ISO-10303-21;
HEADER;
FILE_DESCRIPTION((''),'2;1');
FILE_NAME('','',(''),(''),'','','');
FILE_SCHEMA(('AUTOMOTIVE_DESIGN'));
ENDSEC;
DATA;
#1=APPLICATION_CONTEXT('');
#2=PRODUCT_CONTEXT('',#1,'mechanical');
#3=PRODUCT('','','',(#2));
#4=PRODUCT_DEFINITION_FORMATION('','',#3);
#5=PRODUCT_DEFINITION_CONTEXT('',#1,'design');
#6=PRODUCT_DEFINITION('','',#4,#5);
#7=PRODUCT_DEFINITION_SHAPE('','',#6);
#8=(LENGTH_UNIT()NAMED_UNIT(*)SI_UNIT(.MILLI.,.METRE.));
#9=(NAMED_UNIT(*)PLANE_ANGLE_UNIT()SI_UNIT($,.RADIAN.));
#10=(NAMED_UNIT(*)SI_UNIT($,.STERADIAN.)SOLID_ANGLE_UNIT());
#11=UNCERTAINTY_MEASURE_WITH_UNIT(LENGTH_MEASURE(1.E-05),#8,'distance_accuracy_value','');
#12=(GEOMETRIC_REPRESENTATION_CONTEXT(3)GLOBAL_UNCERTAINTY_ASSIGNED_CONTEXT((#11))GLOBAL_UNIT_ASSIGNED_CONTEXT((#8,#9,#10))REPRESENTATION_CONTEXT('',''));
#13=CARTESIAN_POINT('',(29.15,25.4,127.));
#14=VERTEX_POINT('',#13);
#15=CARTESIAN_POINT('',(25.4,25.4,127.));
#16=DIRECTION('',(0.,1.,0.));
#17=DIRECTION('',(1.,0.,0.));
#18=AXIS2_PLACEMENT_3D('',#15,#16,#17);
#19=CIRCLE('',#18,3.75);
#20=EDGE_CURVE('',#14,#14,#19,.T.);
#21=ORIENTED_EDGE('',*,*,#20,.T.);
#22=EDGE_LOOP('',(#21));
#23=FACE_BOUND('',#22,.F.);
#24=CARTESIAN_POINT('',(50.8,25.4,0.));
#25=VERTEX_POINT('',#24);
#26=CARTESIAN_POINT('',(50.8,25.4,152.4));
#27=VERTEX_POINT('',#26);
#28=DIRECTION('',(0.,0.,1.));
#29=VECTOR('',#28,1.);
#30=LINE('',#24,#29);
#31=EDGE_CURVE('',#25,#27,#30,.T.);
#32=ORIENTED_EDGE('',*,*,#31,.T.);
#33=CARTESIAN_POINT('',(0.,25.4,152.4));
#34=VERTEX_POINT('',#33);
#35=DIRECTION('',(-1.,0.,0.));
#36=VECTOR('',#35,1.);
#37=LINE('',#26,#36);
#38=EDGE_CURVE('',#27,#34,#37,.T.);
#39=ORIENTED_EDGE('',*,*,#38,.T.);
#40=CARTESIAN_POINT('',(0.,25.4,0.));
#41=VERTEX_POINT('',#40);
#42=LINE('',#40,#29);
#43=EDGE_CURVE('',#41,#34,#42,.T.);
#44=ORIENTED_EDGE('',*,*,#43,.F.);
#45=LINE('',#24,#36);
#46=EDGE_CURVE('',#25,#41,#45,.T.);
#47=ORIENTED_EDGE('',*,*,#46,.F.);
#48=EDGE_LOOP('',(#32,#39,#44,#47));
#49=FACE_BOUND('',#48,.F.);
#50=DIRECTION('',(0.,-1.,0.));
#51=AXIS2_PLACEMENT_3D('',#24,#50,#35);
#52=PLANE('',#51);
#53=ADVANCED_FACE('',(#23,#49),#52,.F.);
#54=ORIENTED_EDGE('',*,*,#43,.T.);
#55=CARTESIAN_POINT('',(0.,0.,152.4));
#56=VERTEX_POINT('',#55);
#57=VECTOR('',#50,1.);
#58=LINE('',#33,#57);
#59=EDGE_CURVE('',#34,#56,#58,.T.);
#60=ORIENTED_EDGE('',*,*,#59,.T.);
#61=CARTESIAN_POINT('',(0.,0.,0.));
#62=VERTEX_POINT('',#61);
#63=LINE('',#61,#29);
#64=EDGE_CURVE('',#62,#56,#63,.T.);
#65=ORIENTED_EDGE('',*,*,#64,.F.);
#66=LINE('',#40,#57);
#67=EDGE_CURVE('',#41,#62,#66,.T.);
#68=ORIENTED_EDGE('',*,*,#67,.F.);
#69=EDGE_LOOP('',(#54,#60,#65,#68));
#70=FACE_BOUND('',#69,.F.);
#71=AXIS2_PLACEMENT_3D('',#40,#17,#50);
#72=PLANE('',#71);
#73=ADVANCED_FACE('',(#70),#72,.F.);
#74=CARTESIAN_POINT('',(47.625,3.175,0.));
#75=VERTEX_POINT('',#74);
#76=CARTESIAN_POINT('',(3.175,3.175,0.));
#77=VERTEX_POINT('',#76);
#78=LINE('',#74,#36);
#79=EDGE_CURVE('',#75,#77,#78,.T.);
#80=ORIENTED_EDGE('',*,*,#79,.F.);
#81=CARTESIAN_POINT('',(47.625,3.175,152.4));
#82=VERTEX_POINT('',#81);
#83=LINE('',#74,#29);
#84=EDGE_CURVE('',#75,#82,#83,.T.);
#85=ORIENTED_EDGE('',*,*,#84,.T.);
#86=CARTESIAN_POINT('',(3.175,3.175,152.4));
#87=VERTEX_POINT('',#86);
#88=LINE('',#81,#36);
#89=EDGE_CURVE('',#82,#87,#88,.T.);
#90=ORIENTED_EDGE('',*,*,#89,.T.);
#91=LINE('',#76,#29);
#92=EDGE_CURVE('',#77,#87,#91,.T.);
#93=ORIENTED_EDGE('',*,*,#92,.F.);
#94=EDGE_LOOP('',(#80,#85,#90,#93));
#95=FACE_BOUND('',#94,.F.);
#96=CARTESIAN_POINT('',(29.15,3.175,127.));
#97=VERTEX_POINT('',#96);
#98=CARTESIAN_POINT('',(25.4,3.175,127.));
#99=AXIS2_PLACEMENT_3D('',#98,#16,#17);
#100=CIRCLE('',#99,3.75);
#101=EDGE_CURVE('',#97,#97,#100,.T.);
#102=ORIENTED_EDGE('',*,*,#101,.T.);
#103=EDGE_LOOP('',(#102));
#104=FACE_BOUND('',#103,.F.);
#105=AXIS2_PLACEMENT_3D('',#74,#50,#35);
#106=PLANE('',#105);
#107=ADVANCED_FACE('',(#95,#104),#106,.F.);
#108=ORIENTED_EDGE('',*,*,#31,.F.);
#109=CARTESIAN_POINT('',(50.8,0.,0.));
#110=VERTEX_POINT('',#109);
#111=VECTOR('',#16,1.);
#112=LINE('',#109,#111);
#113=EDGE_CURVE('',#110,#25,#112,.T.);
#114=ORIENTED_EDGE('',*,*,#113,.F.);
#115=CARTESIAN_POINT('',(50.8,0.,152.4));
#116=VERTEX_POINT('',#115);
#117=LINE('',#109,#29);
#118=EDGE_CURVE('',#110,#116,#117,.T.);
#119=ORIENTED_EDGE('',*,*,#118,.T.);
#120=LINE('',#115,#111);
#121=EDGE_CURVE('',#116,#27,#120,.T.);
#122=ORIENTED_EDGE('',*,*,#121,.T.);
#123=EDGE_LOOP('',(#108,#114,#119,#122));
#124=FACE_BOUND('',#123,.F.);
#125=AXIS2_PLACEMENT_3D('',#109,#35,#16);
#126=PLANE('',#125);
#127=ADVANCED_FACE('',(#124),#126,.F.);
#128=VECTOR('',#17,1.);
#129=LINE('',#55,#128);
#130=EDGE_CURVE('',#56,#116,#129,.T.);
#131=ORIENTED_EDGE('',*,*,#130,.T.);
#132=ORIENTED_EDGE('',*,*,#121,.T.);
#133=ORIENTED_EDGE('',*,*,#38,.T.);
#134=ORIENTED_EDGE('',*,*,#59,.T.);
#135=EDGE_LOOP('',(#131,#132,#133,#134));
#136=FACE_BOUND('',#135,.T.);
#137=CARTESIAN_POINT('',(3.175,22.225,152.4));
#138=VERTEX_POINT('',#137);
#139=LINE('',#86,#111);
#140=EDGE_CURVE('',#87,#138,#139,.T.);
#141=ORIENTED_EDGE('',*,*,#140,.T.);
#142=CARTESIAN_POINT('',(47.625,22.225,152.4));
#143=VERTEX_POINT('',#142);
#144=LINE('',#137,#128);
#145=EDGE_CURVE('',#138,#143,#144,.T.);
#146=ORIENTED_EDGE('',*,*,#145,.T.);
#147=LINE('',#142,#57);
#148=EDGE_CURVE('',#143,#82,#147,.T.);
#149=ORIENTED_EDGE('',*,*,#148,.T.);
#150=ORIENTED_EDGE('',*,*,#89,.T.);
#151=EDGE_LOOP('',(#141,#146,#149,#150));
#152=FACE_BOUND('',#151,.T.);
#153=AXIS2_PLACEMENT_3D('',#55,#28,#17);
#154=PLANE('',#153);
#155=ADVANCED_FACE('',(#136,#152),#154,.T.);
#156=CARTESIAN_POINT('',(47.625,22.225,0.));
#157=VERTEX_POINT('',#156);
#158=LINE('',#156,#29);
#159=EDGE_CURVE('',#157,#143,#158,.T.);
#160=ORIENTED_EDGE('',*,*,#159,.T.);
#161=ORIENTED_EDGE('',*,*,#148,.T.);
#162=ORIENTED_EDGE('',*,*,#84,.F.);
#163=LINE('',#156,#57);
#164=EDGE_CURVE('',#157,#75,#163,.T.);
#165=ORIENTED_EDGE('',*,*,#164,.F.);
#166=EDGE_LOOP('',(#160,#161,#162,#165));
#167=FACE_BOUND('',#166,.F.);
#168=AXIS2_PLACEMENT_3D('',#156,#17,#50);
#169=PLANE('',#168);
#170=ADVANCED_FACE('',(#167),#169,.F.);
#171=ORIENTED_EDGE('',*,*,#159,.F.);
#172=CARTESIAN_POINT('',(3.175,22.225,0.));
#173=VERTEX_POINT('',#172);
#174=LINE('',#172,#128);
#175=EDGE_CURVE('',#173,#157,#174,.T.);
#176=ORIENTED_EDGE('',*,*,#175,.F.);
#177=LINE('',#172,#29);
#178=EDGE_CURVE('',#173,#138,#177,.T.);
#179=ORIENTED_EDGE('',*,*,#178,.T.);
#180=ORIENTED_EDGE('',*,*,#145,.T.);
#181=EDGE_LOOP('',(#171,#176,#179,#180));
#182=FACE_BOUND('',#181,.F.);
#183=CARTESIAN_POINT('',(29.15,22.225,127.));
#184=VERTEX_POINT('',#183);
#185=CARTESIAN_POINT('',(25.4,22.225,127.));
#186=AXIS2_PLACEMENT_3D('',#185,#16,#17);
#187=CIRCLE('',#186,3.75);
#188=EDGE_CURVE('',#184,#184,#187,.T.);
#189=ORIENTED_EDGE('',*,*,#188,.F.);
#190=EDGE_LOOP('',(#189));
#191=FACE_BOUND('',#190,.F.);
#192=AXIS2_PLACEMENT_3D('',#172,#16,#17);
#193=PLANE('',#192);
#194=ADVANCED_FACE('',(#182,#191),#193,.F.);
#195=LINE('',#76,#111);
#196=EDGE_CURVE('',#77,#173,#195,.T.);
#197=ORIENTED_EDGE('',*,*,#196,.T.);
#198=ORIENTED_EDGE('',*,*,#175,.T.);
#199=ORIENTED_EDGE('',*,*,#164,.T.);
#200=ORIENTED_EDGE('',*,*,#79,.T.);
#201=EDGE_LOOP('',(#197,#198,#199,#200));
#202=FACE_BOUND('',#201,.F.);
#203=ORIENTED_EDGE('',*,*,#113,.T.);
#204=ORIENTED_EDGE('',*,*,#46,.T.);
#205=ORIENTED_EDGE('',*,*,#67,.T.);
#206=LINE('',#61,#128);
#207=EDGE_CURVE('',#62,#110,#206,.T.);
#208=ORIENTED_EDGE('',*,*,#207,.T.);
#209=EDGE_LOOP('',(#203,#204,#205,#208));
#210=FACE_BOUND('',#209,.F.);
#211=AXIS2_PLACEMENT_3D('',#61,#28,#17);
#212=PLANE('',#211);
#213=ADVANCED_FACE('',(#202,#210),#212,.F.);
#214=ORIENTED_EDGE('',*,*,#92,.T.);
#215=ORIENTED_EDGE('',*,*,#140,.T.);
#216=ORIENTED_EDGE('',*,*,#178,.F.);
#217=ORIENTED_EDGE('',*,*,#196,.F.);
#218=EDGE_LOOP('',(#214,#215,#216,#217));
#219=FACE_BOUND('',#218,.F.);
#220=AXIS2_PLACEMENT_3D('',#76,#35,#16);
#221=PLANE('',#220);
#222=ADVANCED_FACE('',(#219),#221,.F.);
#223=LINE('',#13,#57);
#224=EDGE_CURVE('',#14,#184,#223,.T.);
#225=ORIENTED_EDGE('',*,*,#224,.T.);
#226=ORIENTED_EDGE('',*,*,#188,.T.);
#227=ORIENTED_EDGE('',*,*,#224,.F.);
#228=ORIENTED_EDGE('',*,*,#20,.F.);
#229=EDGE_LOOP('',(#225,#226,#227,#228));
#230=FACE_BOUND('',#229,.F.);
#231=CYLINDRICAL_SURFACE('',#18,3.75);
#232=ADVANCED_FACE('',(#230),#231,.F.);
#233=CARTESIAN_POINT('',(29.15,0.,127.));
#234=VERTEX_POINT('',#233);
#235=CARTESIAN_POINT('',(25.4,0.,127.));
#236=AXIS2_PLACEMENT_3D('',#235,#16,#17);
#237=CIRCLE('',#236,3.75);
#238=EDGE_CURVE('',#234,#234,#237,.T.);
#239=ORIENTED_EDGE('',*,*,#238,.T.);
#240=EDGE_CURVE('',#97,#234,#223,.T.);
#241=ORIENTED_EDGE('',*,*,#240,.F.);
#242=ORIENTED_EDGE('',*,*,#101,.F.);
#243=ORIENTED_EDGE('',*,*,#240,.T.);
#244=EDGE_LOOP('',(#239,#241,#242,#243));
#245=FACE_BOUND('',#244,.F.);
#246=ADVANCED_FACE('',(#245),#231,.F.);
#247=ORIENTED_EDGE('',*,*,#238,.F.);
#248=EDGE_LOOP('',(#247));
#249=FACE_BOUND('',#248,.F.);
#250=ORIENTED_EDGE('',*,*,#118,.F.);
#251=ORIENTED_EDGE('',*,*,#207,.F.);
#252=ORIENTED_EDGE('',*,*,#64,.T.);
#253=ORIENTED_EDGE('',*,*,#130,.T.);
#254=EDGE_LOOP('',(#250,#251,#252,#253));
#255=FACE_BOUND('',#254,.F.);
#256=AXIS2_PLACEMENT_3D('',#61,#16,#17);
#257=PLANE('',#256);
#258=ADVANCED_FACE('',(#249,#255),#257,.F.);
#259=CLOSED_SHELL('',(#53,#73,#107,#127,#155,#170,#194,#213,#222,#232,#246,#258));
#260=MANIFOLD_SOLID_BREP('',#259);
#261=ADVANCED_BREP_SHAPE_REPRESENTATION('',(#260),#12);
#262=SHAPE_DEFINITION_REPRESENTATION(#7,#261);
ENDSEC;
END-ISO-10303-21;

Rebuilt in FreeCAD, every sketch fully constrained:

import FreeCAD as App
import Part
import Sketcher
Q = App.Units.Quantity

doc = App.newDocument("Part")
body = doc.addObject("PartDesign::Body", "Body")

sketch1 = doc.addObject("Sketcher::SketchObject", "Sketch")
body.addObject(sketch1)
sketch1.AttachmentSupport = (doc.XY_Plane, [""])
sketch1.MapMode = "FlatFace"
sketch1.addGeometry([
    Part.LineSegment(App.Vector(0, 25, 0), App.Vector(0, 0, 0)),
    Part.LineSegment(App.Vector(0, 0, 0), App.Vector(51, 0, 0)),
    Part.LineSegment(App.Vector(51, 0, 0), App.Vector(51, 25, 0)),
    Part.LineSegment(App.Vector(51, 25, 0), App.Vector(0, 25, 0)),
    Part.LineSegment(App.Vector(3, 3, 0), App.Vector(3, 22, 0)),
    Part.LineSegment(App.Vector(3, 22, 0), App.Vector(48, 22, 0)),
    Part.LineSegment(App.Vector(48, 22, 0), App.Vector(48, 3, 0)),
    Part.LineSegment(App.Vector(48, 3, 0), App.Vector(3, 3, 0)),
], False)
sketch1.addConstraint([
    Sketcher.Constraint("Coincident", 0, 2, 1, 1),
    Sketcher.Constraint("Coincident", 1, 2, 2, 1),
    Sketcher.Constraint("Coincident", 2, 2, 3, 1),
    Sketcher.Constraint("Coincident", 3, 2, 0, 1),
    Sketcher.Constraint("Coincident", 4, 2, 5, 1),
    Sketcher.Constraint("Coincident", 5, 2, 6, 1),
    Sketcher.Constraint("Coincident", 6, 2, 7, 1),
    Sketcher.Constraint("Coincident", 7, 2, 4, 1),
    Sketcher.Constraint("Vertical", 0),
    Sketcher.Constraint("Horizontal", 1),
    Sketcher.Constraint("Vertical", 2),
    Sketcher.Constraint("Horizontal", 3),
    Sketcher.Constraint("Vertical", 4),
    Sketcher.Constraint("Horizontal", 5),
    Sketcher.Constraint("Vertical", 6),
    Sketcher.Constraint("Horizontal", 7),
    Sketcher.Constraint("Coincident", 0, 2, -1, 1),
    Sketcher.Constraint("DistanceX", 1, 1, 1, 2, Q("2 in")),
    Sketcher.Constraint("DistanceY", 0, 2, 0, 1, Q("1 in")),
    Sketcher.Constraint("DistanceX", -1, 1, 4, 2, Q("0.125 in")),
    Sketcher.Constraint("DistanceY", -1, 1, 6, 2, Q("0.125 in")),
    Sketcher.Constraint("DistanceY", 4, 2, 3, 2, Q("0.125 in")),
    Sketcher.Constraint("DistanceX", 5, 2, 2, 2, Q("0.125 in")),
])
pad1 = doc.addObject("PartDesign::Pad", "Pad")
body.addObject(pad1)
pad1.Profile = sketch1
pad1.Length = Q("6 in")

sketch2 = doc.addObject("Sketcher::SketchObject", "Sketch001")
body.addObject(sketch2)
sketch2.AttachmentSupport = (doc.XZ_Plane, [""])
sketch2.MapMode = "FlatFace"
sketch2.AttachmentOffset = App.Placement(App.Vector(0, 0, -1 * 25.4), App.Rotation())
sketch2.addGeometry(Part.Circle(App.Vector(25.4, 127, 0), App.Vector(0, 0, 1), 3.8), False)
sketch2.addConstraint([
    Sketcher.Constraint("DistanceX", -1, 1, 0, 3, Q("1 in")),
    Sketcher.Constraint("Diameter", 0, 7.5),
    Sketcher.Constraint("DistanceY", -1, 1, 0, 3, Q("5 in")),
])
pocket1 = doc.addObject("PartDesign::Pocket", "Pocket")
body.addObject(pocket1)
pocket1.Profile = sketch2
pocket1.Length = Q("3 in")
pocket1.Reversed = True

doc.recompute()
